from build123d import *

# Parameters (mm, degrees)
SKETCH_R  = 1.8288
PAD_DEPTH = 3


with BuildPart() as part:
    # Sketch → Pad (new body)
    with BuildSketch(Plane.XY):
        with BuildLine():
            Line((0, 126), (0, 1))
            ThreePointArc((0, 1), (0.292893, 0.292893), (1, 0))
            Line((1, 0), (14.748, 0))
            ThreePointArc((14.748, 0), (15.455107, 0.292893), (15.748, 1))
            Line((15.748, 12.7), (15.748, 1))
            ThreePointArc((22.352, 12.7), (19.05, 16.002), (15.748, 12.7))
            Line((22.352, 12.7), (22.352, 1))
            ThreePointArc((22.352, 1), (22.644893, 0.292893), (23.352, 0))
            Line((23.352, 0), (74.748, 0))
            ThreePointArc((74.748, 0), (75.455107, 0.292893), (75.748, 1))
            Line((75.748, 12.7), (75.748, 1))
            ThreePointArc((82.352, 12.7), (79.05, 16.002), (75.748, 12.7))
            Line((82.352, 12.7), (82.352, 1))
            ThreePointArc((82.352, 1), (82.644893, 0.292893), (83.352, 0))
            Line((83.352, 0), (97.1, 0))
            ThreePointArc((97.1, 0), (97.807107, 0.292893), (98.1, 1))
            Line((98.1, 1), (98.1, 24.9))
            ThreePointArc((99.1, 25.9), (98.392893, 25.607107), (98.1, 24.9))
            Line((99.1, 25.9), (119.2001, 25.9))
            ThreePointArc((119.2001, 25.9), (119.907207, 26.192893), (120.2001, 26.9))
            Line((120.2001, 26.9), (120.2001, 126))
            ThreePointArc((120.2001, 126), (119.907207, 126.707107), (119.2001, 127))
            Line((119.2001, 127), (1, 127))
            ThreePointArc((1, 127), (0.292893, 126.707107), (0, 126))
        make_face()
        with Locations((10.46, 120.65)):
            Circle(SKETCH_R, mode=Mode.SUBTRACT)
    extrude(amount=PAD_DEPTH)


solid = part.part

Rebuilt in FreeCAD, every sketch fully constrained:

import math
import FreeCAD as App
import Part
import Sketcher
Q = App.Units.Quantity

doc = App.newDocument("Part")
body = doc.addObject("PartDesign::Body", "Body")

# Sketch on XY plane
sketch1 = body.newObject("Sketcher::SketchObject", "Sketch")
sketch1.AttachmentSupport = (doc.getObject("XY_Plane"), [""])
sketch1.MapMode = "FlatFace"
sketch1.addGeometry([
    Part.LineSegment(App.Vector(0, 126, 0), App.Vector(0, 1, 0)),  # 0
    Part.ArcOfCircle(Part.Circle(App.Vector(1, 1, 0), App.Vector(0, 0, 1), 1), math.radians(180), math.radians(270)),  # 1
    Part.LineSegment(App.Vector(1, 0, 0), App.Vector(14.7, 0, 0)),  # 2
    Part.ArcOfCircle(Part.Circle(App.Vector(14.7, 1, 0), App.Vector(0, 0, 1), 1), math.radians(-90), math.radians(0)),  # 3
    Part.LineSegment(App.Vector(15.7, 1, 0), App.Vector(15.7, 12.7, 0)),  # 4
    Part.ArcOfCircle(Part.Circle(App.Vector(19.1, 12.7, 0), App.Vector(0, 0, 1), 3.3), math.radians(0), math.radians(180)),  # 5
    Part.LineSegment(App.Vector(22.4, 12.7, 0), App.Vector(22.4, 1, 0)),  # 6
    Part.ArcOfCircle(Part.Circle(App.Vector(23.4, 1, 0), App.Vector(0, 0, 1), 1), math.radians(180), math.radians(270)),  # 7
    Part.LineSegment(App.Vector(23.4, 0, 0), App.Vector(74.7, 0, 0)),  # 8
    Part.ArcOfCircle(Part.Circle(App.Vector(74.7, 1, 0), App.Vector(0, 0, 1), 1), math.radians(-90), math.radians(0)),  # 9
    Part.LineSegment(App.Vector(75.7, 1, 0), App.Vector(75.7, 12.7, 0)),  # 10
    Part.ArcOfCircle(Part.Circle(App.Vector(79, 12.7, 0), App.Vector(0, 0, 1), 3.3), math.radians(0), math.radians(180)),  # 11
    Part.LineSegment(App.Vector(82.4, 12.7, 0), App.Vector(82.4, 1, 0)),  # 12
    Part.ArcOfCircle(Part.Circle(App.Vector(83.4, 1, 0), App.Vector(0, 0, 1), 1), math.radians(180), math.radians(270)),  # 13
    Part.LineSegment(App.Vector(83.4, 0, 0), App.Vector(97.1, 0, 0)),  # 14
    Part.ArcOfCircle(Part.Circle(App.Vector(97.1, 1, 0), App.Vector(0, 0, 1), 1), math.radians(-90), math.radians(0)),  # 15
    Part.LineSegment(App.Vector(98.1, 1, 0), App.Vector(98.1, 24.9, 0)),  # 16
    Part.ArcOfCircle(Part.Circle(App.Vector(99.1, 24.9, 0), App.Vector(0, 0, 1), 1), math.radians(90), math.radians(180)),  # 17
    Part.LineSegment(App.Vector(99.1, 25.9, 0), App.Vector(119.2, 25.9, 0)),  # 18
    Part.ArcOfCircle(Part.Circle(App.Vector(119.2, 26.9, 0), App.Vector(0, 0, 1), 1), math.radians(-90), math.radians(0)),  # 19
    Part.LineSegment(App.Vector(120.2, 26.9, 0), App.Vector(120.2, 126, 0)),  # 20
    Part.ArcOfCircle(Part.Circle(App.Vector(119.2, 126, 0), App.Vector(0, 0, 1), 1), math.radians(0), math.radians(90)),  # 21
    Part.LineSegment(App.Vector(119.2, 127, 0), App.Vector(1, 127, 0)),  # 22
    Part.ArcOfCircle(Part.Circle(App.Vector(1, 126, 0), App.Vector(0, 0, 1), 1), math.radians(90), math.radians(180)),  # 23
    Part.Circle(App.Vector(10.5, 120.7, 0), App.Vector(0, 0, 1), 1.8),  # 24
], False)
sketch1.addConstraint([
    Sketcher.Constraint("Tangent", 0, 2, 1, 1),
    Sketcher.Constraint("Tangent", 1, 2, 2, 1),
    Sketcher.Constraint("Tangent", 2, 2, 3, 1),
    Sketcher.Constraint("Tangent", 3, 2, 4, 1),
    Sketcher.Constraint("Tangent", 4, 2, 5, 2),
    Sketcher.Constraint("Tangent", 5, 1, 6, 1),
    Sketcher.Constraint("Tangent", 6, 2, 7, 1),
    Sketcher.Constraint("Tangent", 7, 2, 8, 1),
    Sketcher.Constraint("Tangent", 8, 2, 9, 1),
    Sketcher.Constraint("Tangent", 9, 2, 10, 1),
    Sketcher.Constraint("Tangent", 10, 2, 11, 2),
    Sketcher.Constraint("Tangent", 11, 1, 12, 1),
    Sketcher.Constraint("Tangent", 12, 2, 13, 1),
    Sketcher.Constraint("Tangent", 13, 2, 14, 1),
    Sketcher.Constraint("Tangent", 14, 2, 15, 1),
    Sketcher.Constraint("Tangent", 15, 2, 16, 1),
    Sketcher.Constraint("Tangent", 16, 2, 17, 2),
    Sketcher.Constraint("Tangent", 17, 1, 18, 1),
    Sketcher.Constraint("Tangent", 18, 2, 19, 1),
    Sketcher.Constraint("Tangent", 19, 2, 20, 1),
    Sketcher.Constraint("Tangent", 20, 2, 21, 1),
    Sketcher.Constraint("Tangent", 21, 2, 22, 1),
    Sketcher.Constraint("Tangent", 22, 2, 23, 1),
    Sketcher.Constraint("Tangent", 23, 2, 0, 1),
    Sketcher.Constraint("Vertical", 0),
    Sketcher.Constraint("Horizontal", 2),
    Sketcher.Constraint("Vertical", 4),
    Sketcher.Constraint("Vertical", 6),
    Sketcher.Constraint("Horizontal", 8),
    Sketcher.Constraint("Vertical", 10),
    Sketcher.Constraint("Vertical", 12),
    Sketcher.Constraint("Horizontal", 14),
    Sketcher.Constraint("Vertical", 16),
    Sketcher.Constraint("Horizontal", 18),
    Sketcher.Constraint("Vertical", 20),
    Sketcher.Constraint("Horizontal", 22),
    Sketcher.Constraint("Equal", 1, 3),
    Sketcher.Constraint("Equal", 3, 7),
    Sketcher.Constraint("Equal", 7, 9),
    Sketcher.Constraint("Equal", 5, 11),
    Sketcher.Constraint("Equal", 9, 13),
    Sketcher.Constraint("Equal", 13, 15),
    Sketcher.Constraint("Equal", 15, 17),
    Sketcher.Constraint("Equal", 17, 19),
    Sketcher.Constraint("Equal", 19, 21),
    Sketcher.Constraint("Equal", 21, 23),
    Sketcher.Constraint("PointOnObject", 0, 2, -2),
    Sketcher.Constraint("PointOnObject", 1, 2, -1),
    Sketcher.Constraint("PointOnObject", 7, 2, -1),
    Sketcher.Constraint("PointOnObject", 13, 2, -1),
    Sketcher.Constraint("Horizontal", 5, 3, 11, 3),
    Sketcher.Constraint("Equal", 2, 14),
    Sketcher.Constraint("Radius", 1, Q("0.999999 mm")),
    Sketcher.Constraint("DistanceY", 0, 2, 0, 1, Q("125 mm")),
    Sketcher.Constraint("DistanceY", 4, 1, 4, 2, Q("11.7 mm")),
    Sketcher.Constraint("DistanceY", 16, 1, 16, 2, Q("23.9 mm")),
    Sketcher.Constraint("Radius", 5, Q("3.302 mm")),
    Sketcher.Constraint("DistanceX", 3, 3, 9, 3, Q("60 mm")),
    Sketcher.Constraint("Diameter", 24, Q("3.6576 mm")),
    Sketcher.Constraint("DistanceX", -1, 1, 15, 3, Q("97.100001 mm")),
    Sketcher.Constraint("DistanceX", -1, 1, 24, 3, Q("10.46 mm")),
    Sketcher.Constraint("DistanceY", -1, 1, 24, 3, Q("120.65 mm")),
    Sketcher.Constraint("DistanceX", 18, 1, 18, 2, Q("20.1001 mm")),
])
pad1 = body.newObject("PartDesign::Pad", "Pad")
pad1.Profile = sketch1
pad1.Length = 3

doc.recompute()
